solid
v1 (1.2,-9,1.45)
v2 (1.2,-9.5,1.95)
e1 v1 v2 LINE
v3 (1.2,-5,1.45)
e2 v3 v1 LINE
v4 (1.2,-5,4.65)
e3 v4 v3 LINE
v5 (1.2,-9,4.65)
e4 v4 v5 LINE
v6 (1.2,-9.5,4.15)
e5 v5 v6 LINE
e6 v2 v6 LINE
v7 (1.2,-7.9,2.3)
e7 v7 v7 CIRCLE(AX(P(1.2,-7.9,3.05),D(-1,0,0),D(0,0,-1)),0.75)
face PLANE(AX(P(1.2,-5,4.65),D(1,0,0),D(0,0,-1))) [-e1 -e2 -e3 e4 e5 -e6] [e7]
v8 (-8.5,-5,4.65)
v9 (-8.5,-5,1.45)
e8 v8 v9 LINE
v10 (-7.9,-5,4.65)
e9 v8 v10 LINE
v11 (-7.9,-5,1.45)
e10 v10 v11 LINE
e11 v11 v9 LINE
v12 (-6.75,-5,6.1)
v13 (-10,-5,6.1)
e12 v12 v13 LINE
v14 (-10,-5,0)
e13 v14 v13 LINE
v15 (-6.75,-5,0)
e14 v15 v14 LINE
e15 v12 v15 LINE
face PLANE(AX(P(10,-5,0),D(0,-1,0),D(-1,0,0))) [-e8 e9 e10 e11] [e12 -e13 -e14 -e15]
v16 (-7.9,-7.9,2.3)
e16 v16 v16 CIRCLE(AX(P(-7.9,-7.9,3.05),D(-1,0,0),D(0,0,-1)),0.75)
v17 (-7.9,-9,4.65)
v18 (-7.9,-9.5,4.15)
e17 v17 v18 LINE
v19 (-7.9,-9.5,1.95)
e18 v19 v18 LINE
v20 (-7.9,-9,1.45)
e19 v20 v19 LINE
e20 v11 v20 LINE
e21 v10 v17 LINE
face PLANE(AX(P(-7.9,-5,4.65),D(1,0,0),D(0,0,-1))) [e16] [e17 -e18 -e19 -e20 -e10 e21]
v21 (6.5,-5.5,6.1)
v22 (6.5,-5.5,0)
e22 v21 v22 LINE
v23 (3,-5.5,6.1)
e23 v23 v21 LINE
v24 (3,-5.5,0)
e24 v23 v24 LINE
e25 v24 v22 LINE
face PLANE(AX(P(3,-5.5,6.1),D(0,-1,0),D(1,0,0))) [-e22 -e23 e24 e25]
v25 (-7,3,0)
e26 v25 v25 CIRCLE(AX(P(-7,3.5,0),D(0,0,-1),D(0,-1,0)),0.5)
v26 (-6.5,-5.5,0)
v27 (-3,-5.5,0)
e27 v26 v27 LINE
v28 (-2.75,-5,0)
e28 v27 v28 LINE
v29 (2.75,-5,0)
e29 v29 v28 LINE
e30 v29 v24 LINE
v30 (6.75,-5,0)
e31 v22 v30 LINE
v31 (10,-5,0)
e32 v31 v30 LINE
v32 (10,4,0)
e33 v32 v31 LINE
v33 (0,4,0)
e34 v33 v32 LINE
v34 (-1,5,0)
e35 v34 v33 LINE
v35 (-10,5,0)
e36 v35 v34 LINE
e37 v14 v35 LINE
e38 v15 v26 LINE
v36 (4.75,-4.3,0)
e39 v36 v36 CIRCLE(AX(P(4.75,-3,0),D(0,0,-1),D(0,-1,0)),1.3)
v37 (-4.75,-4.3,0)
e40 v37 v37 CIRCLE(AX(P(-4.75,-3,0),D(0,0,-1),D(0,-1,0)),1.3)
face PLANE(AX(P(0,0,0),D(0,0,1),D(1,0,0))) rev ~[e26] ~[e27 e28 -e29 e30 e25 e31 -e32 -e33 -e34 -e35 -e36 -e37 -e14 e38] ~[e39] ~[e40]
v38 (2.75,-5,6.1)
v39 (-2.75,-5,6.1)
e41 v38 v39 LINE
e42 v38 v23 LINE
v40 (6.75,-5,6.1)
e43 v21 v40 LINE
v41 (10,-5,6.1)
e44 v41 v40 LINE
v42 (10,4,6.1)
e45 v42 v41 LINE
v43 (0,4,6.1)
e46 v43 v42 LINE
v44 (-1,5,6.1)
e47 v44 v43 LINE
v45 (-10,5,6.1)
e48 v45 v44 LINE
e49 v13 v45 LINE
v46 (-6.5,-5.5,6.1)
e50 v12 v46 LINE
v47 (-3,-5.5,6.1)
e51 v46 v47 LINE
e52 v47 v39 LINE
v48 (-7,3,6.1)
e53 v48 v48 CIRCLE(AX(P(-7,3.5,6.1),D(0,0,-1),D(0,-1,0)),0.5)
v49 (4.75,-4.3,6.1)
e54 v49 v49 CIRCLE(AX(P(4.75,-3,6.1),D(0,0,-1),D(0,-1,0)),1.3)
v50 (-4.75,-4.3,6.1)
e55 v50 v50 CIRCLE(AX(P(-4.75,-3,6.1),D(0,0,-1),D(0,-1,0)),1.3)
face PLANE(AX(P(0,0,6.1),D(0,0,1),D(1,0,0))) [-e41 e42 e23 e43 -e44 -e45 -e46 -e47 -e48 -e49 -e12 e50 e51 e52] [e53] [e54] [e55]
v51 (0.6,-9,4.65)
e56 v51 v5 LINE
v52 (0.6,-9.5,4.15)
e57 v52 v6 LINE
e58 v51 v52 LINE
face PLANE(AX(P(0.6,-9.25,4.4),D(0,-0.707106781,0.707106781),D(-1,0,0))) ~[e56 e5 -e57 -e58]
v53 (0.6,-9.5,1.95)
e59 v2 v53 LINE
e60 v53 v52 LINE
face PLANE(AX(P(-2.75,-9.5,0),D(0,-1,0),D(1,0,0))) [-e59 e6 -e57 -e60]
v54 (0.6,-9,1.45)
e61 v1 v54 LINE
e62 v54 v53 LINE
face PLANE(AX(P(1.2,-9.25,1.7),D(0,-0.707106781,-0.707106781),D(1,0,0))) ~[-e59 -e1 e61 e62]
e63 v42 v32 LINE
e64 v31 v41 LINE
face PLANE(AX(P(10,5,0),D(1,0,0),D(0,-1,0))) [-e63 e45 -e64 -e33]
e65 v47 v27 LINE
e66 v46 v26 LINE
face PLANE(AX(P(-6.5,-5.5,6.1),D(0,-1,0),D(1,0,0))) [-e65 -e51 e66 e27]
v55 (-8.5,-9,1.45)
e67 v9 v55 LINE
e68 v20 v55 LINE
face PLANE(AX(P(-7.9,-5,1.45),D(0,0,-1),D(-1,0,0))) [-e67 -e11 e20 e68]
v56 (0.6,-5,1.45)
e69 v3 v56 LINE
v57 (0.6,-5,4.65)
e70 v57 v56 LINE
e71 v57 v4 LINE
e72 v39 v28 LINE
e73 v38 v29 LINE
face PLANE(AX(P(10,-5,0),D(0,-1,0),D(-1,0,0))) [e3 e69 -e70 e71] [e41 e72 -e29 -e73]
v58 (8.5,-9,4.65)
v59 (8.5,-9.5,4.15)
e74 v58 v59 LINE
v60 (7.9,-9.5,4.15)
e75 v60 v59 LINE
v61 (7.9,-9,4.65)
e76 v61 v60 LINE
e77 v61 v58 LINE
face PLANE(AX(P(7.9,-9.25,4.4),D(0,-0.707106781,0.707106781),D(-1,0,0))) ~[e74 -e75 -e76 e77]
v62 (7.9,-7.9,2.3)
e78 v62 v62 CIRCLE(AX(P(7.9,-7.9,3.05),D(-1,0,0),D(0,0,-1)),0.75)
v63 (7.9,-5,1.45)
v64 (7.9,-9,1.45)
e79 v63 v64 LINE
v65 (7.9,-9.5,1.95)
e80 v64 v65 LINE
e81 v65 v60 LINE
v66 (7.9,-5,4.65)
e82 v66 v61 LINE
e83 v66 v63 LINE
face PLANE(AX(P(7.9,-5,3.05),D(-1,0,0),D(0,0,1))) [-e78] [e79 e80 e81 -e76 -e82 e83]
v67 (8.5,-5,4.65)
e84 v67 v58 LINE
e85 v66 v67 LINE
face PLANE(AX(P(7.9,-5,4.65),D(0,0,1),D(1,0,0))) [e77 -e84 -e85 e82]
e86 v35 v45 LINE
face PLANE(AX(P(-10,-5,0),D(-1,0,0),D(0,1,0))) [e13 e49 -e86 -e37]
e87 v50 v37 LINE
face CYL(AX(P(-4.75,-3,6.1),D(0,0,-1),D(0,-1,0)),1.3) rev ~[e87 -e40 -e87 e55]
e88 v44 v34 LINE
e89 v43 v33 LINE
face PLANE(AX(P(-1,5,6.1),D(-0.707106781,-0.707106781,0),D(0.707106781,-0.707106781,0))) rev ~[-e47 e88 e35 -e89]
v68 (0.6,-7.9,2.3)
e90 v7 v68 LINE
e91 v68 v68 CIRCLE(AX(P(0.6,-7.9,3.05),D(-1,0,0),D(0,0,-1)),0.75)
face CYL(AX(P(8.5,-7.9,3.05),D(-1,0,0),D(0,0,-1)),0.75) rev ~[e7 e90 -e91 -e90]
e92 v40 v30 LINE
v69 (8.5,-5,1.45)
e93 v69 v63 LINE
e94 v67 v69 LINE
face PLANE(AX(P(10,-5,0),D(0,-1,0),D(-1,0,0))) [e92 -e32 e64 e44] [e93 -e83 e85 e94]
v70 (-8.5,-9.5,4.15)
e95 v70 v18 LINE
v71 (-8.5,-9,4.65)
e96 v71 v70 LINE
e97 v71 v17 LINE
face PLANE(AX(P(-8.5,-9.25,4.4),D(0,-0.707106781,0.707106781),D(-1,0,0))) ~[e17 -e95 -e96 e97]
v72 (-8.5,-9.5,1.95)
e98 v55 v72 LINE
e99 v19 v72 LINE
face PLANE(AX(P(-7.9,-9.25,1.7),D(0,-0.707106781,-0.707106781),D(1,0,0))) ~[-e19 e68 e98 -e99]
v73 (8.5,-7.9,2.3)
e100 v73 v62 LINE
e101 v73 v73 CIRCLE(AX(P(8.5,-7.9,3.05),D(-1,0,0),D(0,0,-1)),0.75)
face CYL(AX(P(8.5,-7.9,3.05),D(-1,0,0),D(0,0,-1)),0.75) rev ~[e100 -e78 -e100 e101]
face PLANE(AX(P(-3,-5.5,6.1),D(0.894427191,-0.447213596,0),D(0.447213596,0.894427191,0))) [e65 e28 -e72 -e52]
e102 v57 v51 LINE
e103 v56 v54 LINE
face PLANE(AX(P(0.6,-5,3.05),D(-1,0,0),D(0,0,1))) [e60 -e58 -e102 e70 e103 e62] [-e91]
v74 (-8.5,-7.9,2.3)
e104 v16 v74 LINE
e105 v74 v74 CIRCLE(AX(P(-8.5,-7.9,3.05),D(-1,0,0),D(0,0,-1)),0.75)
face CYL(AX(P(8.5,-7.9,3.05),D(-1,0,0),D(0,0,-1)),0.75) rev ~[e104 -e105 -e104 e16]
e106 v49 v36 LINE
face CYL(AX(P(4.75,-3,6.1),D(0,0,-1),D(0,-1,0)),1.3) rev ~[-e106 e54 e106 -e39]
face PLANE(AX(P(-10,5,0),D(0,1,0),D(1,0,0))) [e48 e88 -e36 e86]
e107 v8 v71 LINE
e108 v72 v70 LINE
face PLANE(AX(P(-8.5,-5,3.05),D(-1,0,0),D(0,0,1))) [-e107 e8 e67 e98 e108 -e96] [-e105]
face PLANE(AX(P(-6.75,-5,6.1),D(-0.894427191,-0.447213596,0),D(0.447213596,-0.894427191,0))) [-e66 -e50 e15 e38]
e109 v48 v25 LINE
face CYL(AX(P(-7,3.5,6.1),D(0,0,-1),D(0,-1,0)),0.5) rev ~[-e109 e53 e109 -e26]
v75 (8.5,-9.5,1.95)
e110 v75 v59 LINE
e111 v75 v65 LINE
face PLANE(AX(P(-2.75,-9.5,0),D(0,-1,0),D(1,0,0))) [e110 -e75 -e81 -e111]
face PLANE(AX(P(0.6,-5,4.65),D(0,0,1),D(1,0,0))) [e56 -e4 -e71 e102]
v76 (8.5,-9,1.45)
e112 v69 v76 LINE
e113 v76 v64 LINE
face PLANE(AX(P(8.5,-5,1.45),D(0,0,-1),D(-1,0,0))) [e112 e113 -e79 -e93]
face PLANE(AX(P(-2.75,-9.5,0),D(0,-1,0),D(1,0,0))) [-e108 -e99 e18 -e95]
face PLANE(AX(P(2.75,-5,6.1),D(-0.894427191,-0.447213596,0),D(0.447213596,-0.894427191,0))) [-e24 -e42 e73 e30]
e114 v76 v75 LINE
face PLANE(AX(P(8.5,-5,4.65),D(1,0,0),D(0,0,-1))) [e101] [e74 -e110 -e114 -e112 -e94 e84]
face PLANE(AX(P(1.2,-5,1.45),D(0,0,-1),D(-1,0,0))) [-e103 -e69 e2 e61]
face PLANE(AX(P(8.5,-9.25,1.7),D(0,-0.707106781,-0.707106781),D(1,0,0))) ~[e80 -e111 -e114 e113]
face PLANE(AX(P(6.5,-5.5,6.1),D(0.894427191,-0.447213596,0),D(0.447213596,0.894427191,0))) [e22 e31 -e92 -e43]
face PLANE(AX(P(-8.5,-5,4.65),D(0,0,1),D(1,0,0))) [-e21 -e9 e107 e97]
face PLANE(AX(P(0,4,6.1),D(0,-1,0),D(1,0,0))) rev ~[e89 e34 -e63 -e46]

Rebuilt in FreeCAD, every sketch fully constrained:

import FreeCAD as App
import Part
import Sketcher
from FreeCAD import Vector
Q = App.Units.Quantity


def edges_at(feature, points):
    """Names of the edges that pass closest to the given points."""
    edges = feature.Shape.Edges
    near = lambda p: min(range(len(edges)), key=lambda i: edges[i].distToShape(Part.Vertex(*p))[0])
    return sorted({f"Edge{near(p) + 1}" for p in points})


def add_polygon(sketch, points):
    """Adds a closed chain of lines whose ends are joined by coincident constraints."""
    first, n = sketch.GeometryCount, len(points)
    for a, b in zip(points, points[1:] + points[:1]):
        sketch.addGeometry(Part.LineSegment(App.Vector(*a, 0), App.Vector(*b, 0)), False)
    for i in range(n):
        sketch.addConstraint(Sketcher.Constraint("Coincident", first + i, 2, first + (i + 1) % n, 1))

doc = App.newDocument("Part")
params = doc.addObject("Spreadsheet::Sheet", "Params")
for row, (alias, value) in enumerate([
    ("sketch1_width", "20 mm"),
    ("sketch1_height", "10 mm"),
    ("pad1_length", "6.1 mm"),
    ("sketch2_width", "10 mm"),
    ("sketch2_height", "1 mm"),
    ("sketch3_width", "4 mm"),
    ("sketch3_width2", "3.5 mm"),
    ("pad2_length", "6.1 mm"),
    ("sketch4_diameter", "2.6 mm"),
    ("hole_diameter", "2.6 mm"),
    ("sketch5_width", "0.6 mm"),
    ("sketch5_height", "3.2 mm"),
    ("pad3_length", "4.5 mm"),
    ("chamfer_size", "0.5 mm"),
    ("sketch6_diameter", "1.5 mm"),
    ("hole2_diameter", "1.5 mm"),
    ("sketch7_diameter", "1 mm"),
    ("hole3_diameter", "1 mm"),
], start=1):
    params.set(f"A{row}", alias)
    params.set(f"B{row}", "=" + value)
    params.setAlias(f"B{row}", alias)

body = doc.addObject("PartDesign::Body", "Body")

# Sketch on XY plane
sketch1 = body.newObject("Sketcher::SketchObject", "Sketch")
sketch1.AttachmentSupport = (doc.getObject("XY_Plane"), [""])
sketch1.MapMode = "FlatFace"
add_polygon(sketch1, [(10, 5), (-10, 5), (-10, -5), (10, -5)])  # lines 0-3
sketch1.addConstraint([
    Sketcher.Constraint("Horizontal", 0),
    Sketcher.Constraint("Vertical", 1),
    Sketcher.Constraint("Horizontal", 2),
    Sketcher.Constraint("Vertical", 3),
    Sketcher.Constraint("Symmetric", 0, 2, 2, 2, -1, 1),
    Sketcher.Constraint("DistanceX", 0, 2, 0, 1, Q("20 mm")),
    Sketcher.Constraint("DistanceY", 1, 2, 1, 1, Q("10 mm")),
])
sketch1.setExpression("Constraints[9]", "Params.sketch1_width")
sketch1.setExpression("Constraints[10]", "Params.sketch1_height")
pad1 = body.newObject("PartDesign::Pad", "Pad")
pad1.Profile = sketch1
pad1.setExpression("Length", "Params.pad1_length")

# Sketch on XY plane
sketch2 = body.newObject("Sketcher::SketchObject", "Sketch001")
sketch2.AttachmentSupport = (doc.getObject("XY_Plane"), [""])
sketch2.MapMode = "FlatFace"
sketch2.AttachmentOffset = App.Placement(Vector(0, 0, 6.1), App.Rotation())
add_polygon(sketch2, [(10, 4), (10, 5), (-1, 5), (0, 4)])  # lines 0-3
sketch2.addConstraint([
    Sketcher.Constraint("Vertical", 0),
    Sketcher.Constraint("Horizontal", 1),
    Sketcher.Constraint("Horizontal", 3),
    Sketcher.Constraint("PointOnObject", 2, 2, -2),
    Sketcher.Constraint("DistanceX", 3, 1, 3, 2, Q("10 mm")),
    Sketcher.Constraint("DistanceY", 0, 1, 0, 2, Q("1 mm")),
    Sketcher.Constraint("DistanceX", 1, 2, -1, 1, Q("1 mm")),
    Sketcher.Constraint("DistanceY", -1, 1, 0, 2, Q("5 mm")),
])
sketch2.setExpression("Constraints[8]", "Params.sketch2_width")
sketch2.setExpression("Constraints[9]", "Params.sketch2_height")
pocket1 = body.newObject("PartDesign::Pocket", "Pocket")
pocket1.Profile = sketch2
pocket1.Type = "ThroughAll"

# Sketch on XY plane
sketch3 = body.newObject("Sketcher::SketchObject", "Sketch002")
sketch3.AttachmentSupport = (doc.getObject("XY_Plane"), [""])
sketch3.MapMode = "FlatFace"
sketch3.AttachmentOffset = App.Placement(Vector(0, 0, 6.1), App.Rotation())
add_polygon(sketch3, [(6.75, -5), (2.75, -5), (3, -5.5), (6.5, -5.5)])  # lines 0-3
add_polygon(sketch3, [(-2.75, -5), (-6.75, -5), (-6.5, -5.5), (-3, -5.5)])  # lines 4-7
sketch3.addConstraint([
    Sketcher.Constraint("Horizontal", 0),
    Sketcher.Constraint("Horizontal", 2),
    Sketcher.Constraint("Horizontal", 4),
    Sketcher.Constraint("Horizontal", 6),
    Sketcher.Constraint("Symmetric", 3, 2, 4, 2, -2),
    Sketcher.Constraint("Symmetric", 2, 2, 5, 2, -2),
    Sketcher.Constraint("Parallel", 1, 5),
    Sketcher.Constraint("Parallel", 3, 7),
    Sketcher.Constraint("Equal", 0, 4),
    Sketcher.Constraint("DistanceX", 0, 2, 0, 1, Q("4 mm")),
    Sketcher.Constraint("DistanceX", 2, 1, 2, 2, Q("3.5 mm")),
    Sketcher.Constraint("DistanceY", 1, 2, 0, 2, Q("0.5 mm")),
    Sketcher.Constraint("DistanceY", 0, 2, -1, 1, Q("5 mm")),
    Sketcher.Constraint("DistanceX", -1, 1, 1, 2, Q("3 mm")),
])
sketch3.setExpression("Constraints[17]", "Params.sketch3_width")
sketch3.setExpression("Constraints[18]", "Params.sketch3_width2")
pad2 = body.newObject("PartDesign::Pad", "Pad001")
pad2.Profile = sketch3
pad2.setExpression("Length", "Params.pad2_length")
pad2.Reversed = True

# Sketch on XY plane
sketch4 = body.newObject("Sketcher::SketchObject", "Sketch003")
sketch4.AttachmentSupport = (doc.getObject("XY_Plane"), [""])
sketch4.MapMode = "FlatFace"
sketch4.AttachmentOffset = App.Placement(Vector(0, 0, 6.1), App.Rotation())
sketch4.addGeometry([
    Part.Circle(Vector(-4.75, -3, 0), Vector(0, 0, 1), 1.3),
    Part.Circle(Vector(4.75, -3, 0), Vector(0, 0, 1), 1.3),
], False)
sketch4.addConstraint([
    Sketcher.Constraint("Equal", 0, 1),
    Sketcher.Constraint("Symmetric", 0, 3, 1, 3, -2),
    Sketcher.Constraint("Diameter", 0, Q("2.6 mm")),
    Sketcher.Constraint("DistanceY", 0, 3, -1, 1, Q("3 mm")),
    Sketcher.Constraint("DistanceX", 0, 3, 1, 3, Q("9.5 mm")),
])
sketch4.setExpression("Constraints[2]", "Params.sketch4_diameter")
doc.recompute()
hole = body.newObject("PartDesign::Hole", "Hole")
hole.Profile = sketch4
hole.ThreadType = "None"
hole.setExpression("Diameter", "Params.hole_diameter")
hole.DepthType = "ThroughAll"

# Sketch on XZ plane
sketch5 = body.newObject("Sketcher::SketchObject", "Sketch004")
sketch5.AttachmentSupport = (doc.getObject("XZ_Plane"), [""])
sketch5.MapMode = "FlatFace"
sketch5.AttachmentOffset = App.Placement(Vector(0, 0, 5), App.Rotation())
add_polygon(sketch5, [(-8.5, 4.65), (-8.5, 1.45), (-7.9, 1.45), (-7.9, 4.65)])  # lines 0-3
add_polygon(sketch5, [(7.9, 4.65), (7.9, 1.45), (8.5, 1.45), (8.5, 4.65)])  # lines 4-7
add_polygon(sketch5, [(0.6, 4.65), (0.6, 1.45), (1.2, 1.45), (1.2, 4.65)])  # lines 8-11
sketch5.addConstraint([
    Sketcher.Constraint("Vertical", 0),
    Sketcher.Constraint("Horizontal", 1),
    Sketcher.Constraint("Vertical", 2),
    Sketcher.Constraint("Horizontal", 3),
    Sketcher.Constraint("Vertical", 4),
    Sketcher.Constraint("Horizontal", 5),
    Sketcher.Constraint("Vertical", 6),
    Sketcher.Constraint("Horizontal", 7),
    Sketcher.Constraint("Vertical", 8),
    Sketcher.Constraint("Horizontal", 9),
    Sketcher.Constraint("Vertical", 10),
    Sketcher.Constraint("Horizontal", 11),
    Sketcher.Constraint("Symmetric", 1, 2, 4, 2, -2),
    Sketcher.Constraint("Symmetric", 3, 2, 6, 2, -2),
    Sketcher.Constraint("Horizontal", 5, 2, 8, 2),
    Sketcher.Constraint("Horizontal", 7, 2, 10, 2),
    Sketcher.Constraint("Equal", 7, 9),
    Sketcher.Constraint("DistanceX", 1, 1, 1, 2, Q("0.6 mm")),
    Sketcher.Constraint("DistanceY", 0, 2, 0, 1, Q("3.2 mm")),
    Sketcher.Constraint("DistanceX", 0, 2, -1, 1, Q("8.5 mm")),
    Sketcher.Constraint("DistanceX", -1, 1, 8, 2, Q("0.6 mm")),
    Sketcher.Constraint("DistanceY", -1, 1, 0, 2, Q("1.45 mm")),
])
sketch5.setExpression("Constraints[29]", "Params.sketch5_width")
sketch5.setExpression("Constraints[30]", "Params.sketch5_height")
pad3 = body.newObject("PartDesign::Pad", "Pad002")
pad3.Profile = sketch5
pad3.setExpression("Length", "Params.pad3_length")
doc.recompute()

chamfer = body.newObject("PartDesign::Chamfer", "Chamfer")
chamfer.Base = (pad3, edges_at(pad3, [
    (-8.2, -9.5, 4.65),
    (-8.2, -9.5, 1.45),
    (0.9, -9.5, 4.65),
    (0.9, -9.5, 1.45),
    (8.2, -9.5, 4.65),
    (8.2, -9.5, 1.45),
]))
chamfer.setExpression("Size", "Params.chamfer_size")

# Sketch on YZ plane
sketch6 = body.newObject("Sketcher::SketchObject", "Sketch005")
sketch6.AttachmentSupport = (doc.getObject("YZ_Plane"), [""])
sketch6.MapMode = "FlatFace"
sketch6.AttachmentOffset = App.Placement(Vector(0, 0, 8.5), App.Rotation())
sketch6.addGeometry(Part.Circle(Vector(-7.9, 3.05, 0), Vector(0, 0, 1), 0.75), False)
sketch6.addConstraint([
    Sketcher.Constraint("Diameter", 0, Q("1.5 mm")),
    Sketcher.Constraint("DistanceX", 0, 3, -1, 1, Q("7.9 mm")),
    Sketcher.Constraint("DistanceY", -1, 1, 0, 3, Q("3.05 mm")),
])
sketch6.setExpression("Constraints[0]", "Params.sketch6_diameter")
doc.recompute()
hole2 = body.newObject("PartDesign::Hole", "Hole001")
hole2.Profile = sketch6
hole2.ThreadType = "None"
hole2.setExpression("Diameter", "Params.hole2_diameter")
hole2.DepthType = "ThroughAll"

# Sketch on XY plane
sketch7 = body.newObject("Sketcher::SketchObject", "Sketch006")
sketch7.AttachmentSupport = (doc.getObject("XY_Plane"), [""])
sketch7.MapMode = "FlatFace"
sketch7.AttachmentOffset = App.Placement(Vector(0, 0, 6.1), App.Rotation())
sketch7.addGeometry(Part.Circle(Vector(-7, 3.5, 0), Vector(0, 0, 1), 0.5), False)
sketch7.addConstraint([
    Sketcher.Constraint("Diameter", 0, Q("1 mm")),
    Sketcher.Constraint("DistanceX", 0, 3, -1, 1, Q("7 mm")),
    Sketcher.Constraint("DistanceY", -1, 1, 0, 3, Q("3.5 mm")),
])
sketch7.setExpression("Constraints[0]", "Params.sketch7_diameter")
doc.recompute()
hole3 = body.newObject("PartDesign::Hole", "Hole002")
hole3.Profile = sketch7
hole3.ThreadType = "None"
hole3.setExpression("Diameter", "Params.hole3_diameter")
hole3.DepthType = "ThroughAll"

doc.recompute()
